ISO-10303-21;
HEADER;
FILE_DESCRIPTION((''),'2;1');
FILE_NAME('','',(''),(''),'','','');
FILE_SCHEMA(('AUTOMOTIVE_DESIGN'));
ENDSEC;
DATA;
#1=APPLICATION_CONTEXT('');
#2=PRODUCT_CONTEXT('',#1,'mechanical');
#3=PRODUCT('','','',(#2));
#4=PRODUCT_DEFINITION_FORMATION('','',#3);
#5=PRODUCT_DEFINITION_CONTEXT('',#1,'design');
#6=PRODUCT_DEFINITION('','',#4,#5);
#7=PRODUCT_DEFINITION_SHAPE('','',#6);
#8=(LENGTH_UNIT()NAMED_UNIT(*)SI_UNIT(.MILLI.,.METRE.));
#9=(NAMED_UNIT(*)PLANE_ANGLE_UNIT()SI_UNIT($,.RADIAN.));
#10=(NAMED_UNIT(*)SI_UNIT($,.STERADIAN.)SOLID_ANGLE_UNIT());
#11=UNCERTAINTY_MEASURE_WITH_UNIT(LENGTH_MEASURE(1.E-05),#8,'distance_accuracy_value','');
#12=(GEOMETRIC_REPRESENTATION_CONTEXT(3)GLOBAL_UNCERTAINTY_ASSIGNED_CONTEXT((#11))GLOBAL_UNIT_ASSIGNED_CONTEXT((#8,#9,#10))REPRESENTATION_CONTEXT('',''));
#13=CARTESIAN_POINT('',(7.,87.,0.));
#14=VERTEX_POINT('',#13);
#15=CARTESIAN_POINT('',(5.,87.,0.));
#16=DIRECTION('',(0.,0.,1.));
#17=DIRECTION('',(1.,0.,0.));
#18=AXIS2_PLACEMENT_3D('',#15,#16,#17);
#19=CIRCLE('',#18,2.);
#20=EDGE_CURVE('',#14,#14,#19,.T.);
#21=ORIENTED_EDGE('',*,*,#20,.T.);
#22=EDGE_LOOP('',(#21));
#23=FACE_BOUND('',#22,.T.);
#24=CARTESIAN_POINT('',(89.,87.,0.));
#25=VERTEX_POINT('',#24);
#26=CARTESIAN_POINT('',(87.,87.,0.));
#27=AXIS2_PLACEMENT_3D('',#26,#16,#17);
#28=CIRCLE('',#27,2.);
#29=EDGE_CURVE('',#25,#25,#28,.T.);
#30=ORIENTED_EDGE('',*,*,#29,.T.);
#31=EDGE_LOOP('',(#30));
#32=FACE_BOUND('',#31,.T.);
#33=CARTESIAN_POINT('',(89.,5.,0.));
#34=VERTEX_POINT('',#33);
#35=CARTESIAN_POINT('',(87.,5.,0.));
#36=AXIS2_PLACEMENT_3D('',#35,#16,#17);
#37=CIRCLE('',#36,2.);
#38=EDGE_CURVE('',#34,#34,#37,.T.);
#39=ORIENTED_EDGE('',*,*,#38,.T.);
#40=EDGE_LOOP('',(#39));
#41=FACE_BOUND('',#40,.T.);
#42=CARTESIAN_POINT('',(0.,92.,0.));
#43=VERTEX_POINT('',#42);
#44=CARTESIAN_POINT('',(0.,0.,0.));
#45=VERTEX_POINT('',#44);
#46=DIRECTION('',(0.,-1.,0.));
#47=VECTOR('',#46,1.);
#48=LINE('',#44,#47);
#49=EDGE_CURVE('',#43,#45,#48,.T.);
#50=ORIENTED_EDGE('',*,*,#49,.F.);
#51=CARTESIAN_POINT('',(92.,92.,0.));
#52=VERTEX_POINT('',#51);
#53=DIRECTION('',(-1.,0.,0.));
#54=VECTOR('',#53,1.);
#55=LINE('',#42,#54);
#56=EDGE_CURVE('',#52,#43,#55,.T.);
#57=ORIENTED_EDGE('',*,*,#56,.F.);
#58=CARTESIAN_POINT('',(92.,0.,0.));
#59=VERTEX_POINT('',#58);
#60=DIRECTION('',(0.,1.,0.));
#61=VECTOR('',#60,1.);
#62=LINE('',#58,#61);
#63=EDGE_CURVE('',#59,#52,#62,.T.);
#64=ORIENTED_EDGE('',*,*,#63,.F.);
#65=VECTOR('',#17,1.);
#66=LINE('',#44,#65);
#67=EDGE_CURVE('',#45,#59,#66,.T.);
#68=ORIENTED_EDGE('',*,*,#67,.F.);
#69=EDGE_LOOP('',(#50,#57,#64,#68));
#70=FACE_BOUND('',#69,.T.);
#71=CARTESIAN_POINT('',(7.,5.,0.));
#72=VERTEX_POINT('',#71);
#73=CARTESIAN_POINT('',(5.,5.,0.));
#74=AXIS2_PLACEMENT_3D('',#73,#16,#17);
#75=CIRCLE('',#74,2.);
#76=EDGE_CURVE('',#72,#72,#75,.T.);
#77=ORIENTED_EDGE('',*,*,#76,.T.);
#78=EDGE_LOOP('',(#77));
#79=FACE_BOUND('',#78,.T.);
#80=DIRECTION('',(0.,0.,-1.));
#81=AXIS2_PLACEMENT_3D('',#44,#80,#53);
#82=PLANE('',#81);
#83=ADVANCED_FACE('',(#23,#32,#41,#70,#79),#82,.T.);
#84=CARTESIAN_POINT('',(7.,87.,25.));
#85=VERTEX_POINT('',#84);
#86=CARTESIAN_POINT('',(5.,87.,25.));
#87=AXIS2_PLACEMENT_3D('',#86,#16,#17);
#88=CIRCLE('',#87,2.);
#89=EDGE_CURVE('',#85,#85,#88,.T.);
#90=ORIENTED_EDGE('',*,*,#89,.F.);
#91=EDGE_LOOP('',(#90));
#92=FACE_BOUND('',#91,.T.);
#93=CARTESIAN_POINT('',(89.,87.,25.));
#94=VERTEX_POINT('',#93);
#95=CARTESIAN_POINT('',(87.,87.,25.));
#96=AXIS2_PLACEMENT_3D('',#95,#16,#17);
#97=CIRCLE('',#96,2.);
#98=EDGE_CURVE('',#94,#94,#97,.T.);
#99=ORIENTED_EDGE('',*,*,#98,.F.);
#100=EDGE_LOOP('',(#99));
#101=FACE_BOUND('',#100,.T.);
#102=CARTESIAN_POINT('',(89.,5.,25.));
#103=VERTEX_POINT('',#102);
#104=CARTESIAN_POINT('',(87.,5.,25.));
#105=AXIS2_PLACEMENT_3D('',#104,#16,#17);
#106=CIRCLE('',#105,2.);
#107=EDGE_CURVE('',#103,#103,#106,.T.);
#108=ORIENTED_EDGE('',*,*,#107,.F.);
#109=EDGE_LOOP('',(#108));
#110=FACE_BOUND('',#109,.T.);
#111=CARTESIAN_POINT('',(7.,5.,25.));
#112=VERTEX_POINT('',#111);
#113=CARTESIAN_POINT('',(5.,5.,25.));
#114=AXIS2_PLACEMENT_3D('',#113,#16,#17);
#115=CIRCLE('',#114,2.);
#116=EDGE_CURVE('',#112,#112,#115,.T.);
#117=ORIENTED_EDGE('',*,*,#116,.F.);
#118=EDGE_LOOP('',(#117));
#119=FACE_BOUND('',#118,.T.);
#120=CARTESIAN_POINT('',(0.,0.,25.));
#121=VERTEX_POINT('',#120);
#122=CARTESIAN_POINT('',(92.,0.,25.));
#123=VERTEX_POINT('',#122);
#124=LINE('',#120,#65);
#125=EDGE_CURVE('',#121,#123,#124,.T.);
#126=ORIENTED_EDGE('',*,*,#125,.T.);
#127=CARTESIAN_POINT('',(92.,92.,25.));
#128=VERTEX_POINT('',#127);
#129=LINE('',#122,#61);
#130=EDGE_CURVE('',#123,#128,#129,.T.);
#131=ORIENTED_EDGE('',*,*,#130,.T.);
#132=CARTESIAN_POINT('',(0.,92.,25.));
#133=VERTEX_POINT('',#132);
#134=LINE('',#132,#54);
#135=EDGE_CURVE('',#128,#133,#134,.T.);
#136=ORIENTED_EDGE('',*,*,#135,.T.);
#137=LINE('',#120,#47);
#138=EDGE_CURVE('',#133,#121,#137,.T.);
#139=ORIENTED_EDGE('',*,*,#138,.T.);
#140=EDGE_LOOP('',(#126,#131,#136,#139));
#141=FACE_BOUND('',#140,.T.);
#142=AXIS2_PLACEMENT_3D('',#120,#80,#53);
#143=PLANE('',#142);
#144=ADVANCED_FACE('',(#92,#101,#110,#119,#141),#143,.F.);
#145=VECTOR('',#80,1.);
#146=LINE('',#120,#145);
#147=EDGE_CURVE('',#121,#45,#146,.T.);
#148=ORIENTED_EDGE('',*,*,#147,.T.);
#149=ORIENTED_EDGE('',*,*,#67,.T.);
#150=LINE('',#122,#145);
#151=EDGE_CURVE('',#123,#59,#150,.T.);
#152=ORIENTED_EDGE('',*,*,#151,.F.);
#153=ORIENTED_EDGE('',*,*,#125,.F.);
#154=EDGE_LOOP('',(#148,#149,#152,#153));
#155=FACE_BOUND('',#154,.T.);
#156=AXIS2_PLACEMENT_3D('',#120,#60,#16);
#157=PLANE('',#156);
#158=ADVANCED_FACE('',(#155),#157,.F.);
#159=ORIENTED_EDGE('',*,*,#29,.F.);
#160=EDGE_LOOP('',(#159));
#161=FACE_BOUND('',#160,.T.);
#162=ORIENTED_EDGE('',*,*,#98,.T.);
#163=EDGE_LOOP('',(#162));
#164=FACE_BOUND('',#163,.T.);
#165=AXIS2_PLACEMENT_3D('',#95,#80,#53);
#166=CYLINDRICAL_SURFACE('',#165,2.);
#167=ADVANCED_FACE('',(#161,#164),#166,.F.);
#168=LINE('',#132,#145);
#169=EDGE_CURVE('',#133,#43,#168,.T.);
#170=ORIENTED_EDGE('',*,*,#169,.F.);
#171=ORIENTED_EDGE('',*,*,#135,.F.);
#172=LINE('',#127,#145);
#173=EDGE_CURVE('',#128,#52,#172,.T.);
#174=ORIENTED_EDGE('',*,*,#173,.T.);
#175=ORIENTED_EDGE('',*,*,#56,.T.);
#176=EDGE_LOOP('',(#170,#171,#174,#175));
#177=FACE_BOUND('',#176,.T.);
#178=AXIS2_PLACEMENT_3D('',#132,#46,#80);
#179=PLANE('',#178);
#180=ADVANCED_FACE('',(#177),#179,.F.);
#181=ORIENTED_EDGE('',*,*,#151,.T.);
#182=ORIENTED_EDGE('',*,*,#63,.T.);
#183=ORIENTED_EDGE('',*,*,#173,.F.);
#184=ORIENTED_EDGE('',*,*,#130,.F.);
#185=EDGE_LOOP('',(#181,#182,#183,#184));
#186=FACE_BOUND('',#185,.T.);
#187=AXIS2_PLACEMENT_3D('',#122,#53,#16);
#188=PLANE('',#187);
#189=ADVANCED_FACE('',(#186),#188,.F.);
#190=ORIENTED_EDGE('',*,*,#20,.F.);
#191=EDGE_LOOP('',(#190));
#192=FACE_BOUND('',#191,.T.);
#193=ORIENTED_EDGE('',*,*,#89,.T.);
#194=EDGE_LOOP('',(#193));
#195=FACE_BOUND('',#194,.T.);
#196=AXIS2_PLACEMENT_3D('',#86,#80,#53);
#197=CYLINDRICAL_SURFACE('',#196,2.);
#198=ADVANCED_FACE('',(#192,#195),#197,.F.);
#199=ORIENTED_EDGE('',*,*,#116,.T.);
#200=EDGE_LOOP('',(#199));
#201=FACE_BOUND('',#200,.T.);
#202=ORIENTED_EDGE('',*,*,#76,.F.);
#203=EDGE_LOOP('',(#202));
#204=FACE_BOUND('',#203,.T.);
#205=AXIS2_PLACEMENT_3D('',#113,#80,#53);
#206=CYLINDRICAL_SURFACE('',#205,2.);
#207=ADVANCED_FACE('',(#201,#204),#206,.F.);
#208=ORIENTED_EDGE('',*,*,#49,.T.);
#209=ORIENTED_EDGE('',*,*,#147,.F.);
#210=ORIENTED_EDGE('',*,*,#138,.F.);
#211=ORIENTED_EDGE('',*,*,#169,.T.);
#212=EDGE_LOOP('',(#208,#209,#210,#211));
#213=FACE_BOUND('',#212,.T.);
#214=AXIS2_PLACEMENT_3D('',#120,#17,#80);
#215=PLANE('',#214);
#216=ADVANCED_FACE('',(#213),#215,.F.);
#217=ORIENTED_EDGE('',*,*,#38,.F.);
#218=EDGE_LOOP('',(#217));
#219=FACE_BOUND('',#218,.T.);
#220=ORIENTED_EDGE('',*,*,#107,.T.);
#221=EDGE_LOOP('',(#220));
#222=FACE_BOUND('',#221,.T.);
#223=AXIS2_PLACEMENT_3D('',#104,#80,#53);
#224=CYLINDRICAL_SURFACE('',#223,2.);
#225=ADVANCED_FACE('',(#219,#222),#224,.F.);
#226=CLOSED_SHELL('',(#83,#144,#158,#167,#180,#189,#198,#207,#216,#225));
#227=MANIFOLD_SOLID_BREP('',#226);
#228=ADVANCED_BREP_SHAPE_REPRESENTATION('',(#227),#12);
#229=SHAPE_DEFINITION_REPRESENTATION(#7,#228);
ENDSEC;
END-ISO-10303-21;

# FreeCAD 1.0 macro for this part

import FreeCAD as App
import Part
import Sketcher


def add_polygon(sketch, points):
    """Adds a closed chain of lines whose ends are joined by coincident constraints."""
    first, n = sketch.GeometryCount, len(points)
    for a, b in zip(points, points[1:] + points[:1]):
        sketch.addGeometry(Part.LineSegment(App.Vector(*a, 0), App.Vector(*b, 0)), False)
    for i in range(n):
        sketch.addConstraint(Sketcher.Constraint("Coincident", first + i, 2, first + (i + 1) % n, 1))

doc = App.newDocument("Part")
body = doc.addObject("PartDesign::Body", "Body")

# Sketch on XY plane
sketch1 = body.newObject("Sketcher::SketchObject", "Sketch")
sketch1.AttachmentSupport = (doc.getObject("XY_Plane"), [""])
sketch1.MapMode = "FlatFace"
add_polygon(sketch1, [(0, 92), (0, 0), (92, 0), (92, 92)])  # lines 0-3
sketch1.addGeometry(Part.Circle(App.Vector(5, 5, 0), App.Vector(0, 0, 1), 2), False)  # 4
sketch1.addGeometry(Part.Circle(App.Vector(87, 5, 0), App.Vector(0, 0, 1), 2), False)  # 5
sketch1.addGeometry(Part.Circle(App.Vector(5, 87, 0), App.Vector(0, 0, 1), 2), False)  # 6
sketch1.addGeometry(Part.Circle(App.Vector(87, 87, 0), App.Vector(0, 0, 1), 2), False)  # 7
sketch1.addConstraint(Sketcher.Constraint("Vertical", 0))
sketch1.addConstraint(Sketcher.Constraint("Horizontal", 1))
sketch1.addConstraint(Sketcher.Constraint("Vertical", 2))
sketch1.addConstraint(Sketcher.Constraint("Horizontal", 3))
sketch1.addConstraint(Sketcher.Constraint("Coincident", 0, 2, -1, 1))
sketch1.addConstraint(Sketcher.Constraint("Equal", 4, 5))
sketch1.addConstraint(Sketcher.Constraint("Equal", 5, 6))
sketch1.addConstraint(Sketcher.Constraint("Equal", 6, 7))
sketch1.addConstraint(Sketcher.Constraint("Horizontal", 4, 3, 5, 3))
sketch1.addConstraint(Sketcher.Constraint("Horizontal", 6, 3, 7, 3))
sketch1.addConstraint(Sketcher.Constraint("Vertical", 4, 3, 6, 3))
sketch1.addConstraint(Sketcher.Constraint("Vertical", 5, 3, 7, 3))
sketch1.addConstraint(Sketcher.Constraint("Equal", 3, 0))
sketch1.addConstraint(Sketcher.Constraint("Diameter", 4, 4.0))
sketch1.addConstraint(Sketcher.Constraint("DistanceX", 1, 1, 1, 2, 92.0))
sketch1.addConstraint(Sketcher.Constraint("DistanceX", -1, 1, 4, 3, 5.0))
sketch1.addConstraint(Sketcher.Constraint("DistanceY", -1, 1, 4, 3, 5.0))
sketch1.addConstraint(Sketcher.Constraint("DistanceX", -1, 1, 5, 3, 87.0))
sketch1.addConstraint(Sketcher.Constraint("DistanceY", -1, 1, 6, 3, 87.0))
pad1 = body.newObject("PartDesign::Pad", "Pad")
pad1.Profile = sketch1
pad1.Length = 25

doc.recompute()
